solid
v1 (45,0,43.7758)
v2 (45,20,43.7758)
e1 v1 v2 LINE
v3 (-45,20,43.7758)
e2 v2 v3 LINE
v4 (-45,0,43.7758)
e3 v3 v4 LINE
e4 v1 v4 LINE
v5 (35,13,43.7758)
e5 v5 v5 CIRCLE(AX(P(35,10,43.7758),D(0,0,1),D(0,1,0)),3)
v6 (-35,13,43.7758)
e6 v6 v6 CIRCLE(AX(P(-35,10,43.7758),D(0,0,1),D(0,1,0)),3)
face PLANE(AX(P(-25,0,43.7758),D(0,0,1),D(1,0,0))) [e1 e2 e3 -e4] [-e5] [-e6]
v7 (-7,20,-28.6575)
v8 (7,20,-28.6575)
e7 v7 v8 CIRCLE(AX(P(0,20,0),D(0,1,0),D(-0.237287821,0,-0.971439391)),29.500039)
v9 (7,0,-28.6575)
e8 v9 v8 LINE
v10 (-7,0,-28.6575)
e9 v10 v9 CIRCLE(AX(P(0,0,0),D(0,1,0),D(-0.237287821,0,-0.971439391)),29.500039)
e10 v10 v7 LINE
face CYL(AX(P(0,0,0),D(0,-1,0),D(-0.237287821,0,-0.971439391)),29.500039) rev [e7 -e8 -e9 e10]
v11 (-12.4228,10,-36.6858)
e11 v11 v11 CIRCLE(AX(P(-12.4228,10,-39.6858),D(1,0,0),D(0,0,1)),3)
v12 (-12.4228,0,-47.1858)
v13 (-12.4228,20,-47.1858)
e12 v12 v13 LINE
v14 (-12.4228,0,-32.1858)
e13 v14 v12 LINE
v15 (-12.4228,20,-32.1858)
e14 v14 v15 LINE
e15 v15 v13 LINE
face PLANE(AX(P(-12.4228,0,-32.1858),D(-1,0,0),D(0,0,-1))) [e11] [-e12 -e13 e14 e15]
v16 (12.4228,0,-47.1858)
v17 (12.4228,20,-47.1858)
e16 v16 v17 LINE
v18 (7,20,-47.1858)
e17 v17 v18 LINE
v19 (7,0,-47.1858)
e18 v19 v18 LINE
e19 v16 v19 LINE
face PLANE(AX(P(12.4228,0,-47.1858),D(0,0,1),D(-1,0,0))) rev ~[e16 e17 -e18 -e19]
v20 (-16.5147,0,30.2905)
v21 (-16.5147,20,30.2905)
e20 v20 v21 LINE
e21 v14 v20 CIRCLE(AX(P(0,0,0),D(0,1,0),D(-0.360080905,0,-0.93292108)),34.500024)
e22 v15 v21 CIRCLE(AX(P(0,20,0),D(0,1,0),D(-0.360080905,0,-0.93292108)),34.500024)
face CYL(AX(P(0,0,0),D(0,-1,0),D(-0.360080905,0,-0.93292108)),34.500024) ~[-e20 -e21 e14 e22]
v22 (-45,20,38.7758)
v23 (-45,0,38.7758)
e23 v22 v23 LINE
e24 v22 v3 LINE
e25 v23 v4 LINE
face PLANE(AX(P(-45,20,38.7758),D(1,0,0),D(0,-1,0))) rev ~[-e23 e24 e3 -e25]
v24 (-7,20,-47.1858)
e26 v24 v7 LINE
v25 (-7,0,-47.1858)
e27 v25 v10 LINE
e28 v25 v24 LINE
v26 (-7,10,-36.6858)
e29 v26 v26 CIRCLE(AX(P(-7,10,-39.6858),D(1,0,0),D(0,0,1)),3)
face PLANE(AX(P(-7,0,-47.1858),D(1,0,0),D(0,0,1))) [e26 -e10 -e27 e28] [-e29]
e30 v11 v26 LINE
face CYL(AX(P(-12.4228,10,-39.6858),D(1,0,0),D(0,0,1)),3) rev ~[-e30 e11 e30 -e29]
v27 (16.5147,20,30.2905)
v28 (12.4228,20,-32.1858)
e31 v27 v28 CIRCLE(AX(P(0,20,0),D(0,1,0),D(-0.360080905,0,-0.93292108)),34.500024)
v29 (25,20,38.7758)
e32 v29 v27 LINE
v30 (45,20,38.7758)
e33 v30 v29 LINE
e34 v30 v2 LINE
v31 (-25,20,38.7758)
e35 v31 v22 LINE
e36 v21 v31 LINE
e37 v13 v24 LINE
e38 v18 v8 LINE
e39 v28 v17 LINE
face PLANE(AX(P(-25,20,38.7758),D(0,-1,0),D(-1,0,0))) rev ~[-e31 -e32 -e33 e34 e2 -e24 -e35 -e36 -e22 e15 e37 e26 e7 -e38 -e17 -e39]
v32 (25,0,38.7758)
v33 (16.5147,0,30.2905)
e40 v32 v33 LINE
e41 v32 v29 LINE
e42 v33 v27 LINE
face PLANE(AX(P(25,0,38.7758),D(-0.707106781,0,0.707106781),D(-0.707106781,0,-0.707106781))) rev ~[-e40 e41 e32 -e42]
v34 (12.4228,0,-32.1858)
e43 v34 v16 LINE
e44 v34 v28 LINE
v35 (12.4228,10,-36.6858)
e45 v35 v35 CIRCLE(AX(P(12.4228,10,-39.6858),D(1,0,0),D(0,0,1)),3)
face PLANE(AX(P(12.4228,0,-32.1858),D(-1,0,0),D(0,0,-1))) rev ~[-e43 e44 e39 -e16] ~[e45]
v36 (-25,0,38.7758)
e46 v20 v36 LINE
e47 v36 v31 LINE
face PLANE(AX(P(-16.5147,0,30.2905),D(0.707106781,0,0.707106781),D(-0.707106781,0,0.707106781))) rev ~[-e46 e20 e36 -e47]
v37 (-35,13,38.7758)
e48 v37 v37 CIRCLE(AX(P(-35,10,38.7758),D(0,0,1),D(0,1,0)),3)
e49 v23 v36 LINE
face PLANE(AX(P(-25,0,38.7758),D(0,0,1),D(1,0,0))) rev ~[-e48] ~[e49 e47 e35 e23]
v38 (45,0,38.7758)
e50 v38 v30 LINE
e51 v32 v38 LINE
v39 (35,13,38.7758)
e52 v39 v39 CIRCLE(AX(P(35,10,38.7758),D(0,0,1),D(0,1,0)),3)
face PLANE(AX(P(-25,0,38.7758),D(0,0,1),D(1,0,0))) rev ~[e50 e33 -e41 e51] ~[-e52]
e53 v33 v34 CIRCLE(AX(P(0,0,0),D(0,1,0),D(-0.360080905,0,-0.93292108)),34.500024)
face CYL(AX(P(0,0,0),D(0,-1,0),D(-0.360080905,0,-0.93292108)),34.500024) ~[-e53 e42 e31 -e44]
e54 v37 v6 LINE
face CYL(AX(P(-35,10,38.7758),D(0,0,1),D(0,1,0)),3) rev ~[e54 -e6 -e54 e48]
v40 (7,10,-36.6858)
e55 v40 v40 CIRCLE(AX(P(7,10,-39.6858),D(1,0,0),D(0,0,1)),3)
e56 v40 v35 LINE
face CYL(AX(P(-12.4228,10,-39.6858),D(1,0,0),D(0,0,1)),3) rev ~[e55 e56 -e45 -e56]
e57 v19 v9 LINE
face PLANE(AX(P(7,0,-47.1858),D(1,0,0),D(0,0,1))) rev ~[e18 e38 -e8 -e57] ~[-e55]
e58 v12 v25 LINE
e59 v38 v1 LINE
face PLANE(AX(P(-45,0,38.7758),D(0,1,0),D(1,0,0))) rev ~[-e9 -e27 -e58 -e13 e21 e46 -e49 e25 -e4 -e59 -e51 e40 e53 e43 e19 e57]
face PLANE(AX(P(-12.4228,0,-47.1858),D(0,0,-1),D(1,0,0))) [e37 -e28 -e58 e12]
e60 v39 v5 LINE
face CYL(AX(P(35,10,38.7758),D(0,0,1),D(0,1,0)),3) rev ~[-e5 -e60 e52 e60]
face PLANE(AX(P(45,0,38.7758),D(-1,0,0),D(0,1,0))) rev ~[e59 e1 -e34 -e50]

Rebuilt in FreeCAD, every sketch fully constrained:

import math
import FreeCAD as App
import Part
import Sketcher

doc = App.newDocument("Part")
body = doc.addObject("PartDesign::Body", "Body")

sketch1 = body.newObject("Sketcher::SketchObject", "Sketch")
sketch1.AttachmentSupport = (doc.getObject("XZ_Plane"), [""])
sketch1.MapMode = "FlatFace"
sketch1.addGeometry([
    Part.ArcOfCircle(Part.Circle(App.Vector(0, 0, 0), App.Vector(0, 0, 1), 30), math.radians(-76), math.radians(256)),
    Part.LineSegment(App.Vector(-7, -29, 0), App.Vector(-7, -47, 0)),
    Part.LineSegment(App.Vector(-7, -47, 0), App.Vector(-12, -47, 0)),
    Part.LineSegment(App.Vector(-12, -47, 0), App.Vector(-12, -32, 0)),
    Part.ArcOfCircle(Part.Circle(App.Vector(0, 0, 0), App.Vector(0, 0, 1), 35), math.radians(119), math.radians(249)),
    Part.LineSegment(App.Vector(-17, 30, 0), App.Vector(-25, 39, 0)),
    Part.LineSegment(App.Vector(-25, 39, 0), App.Vector(25, 39, 0)),
    Part.LineSegment(App.Vector(25, 39, 0), App.Vector(17, 30, 0)),
    Part.ArcOfCircle(Part.Circle(App.Vector(0, 0, 0), App.Vector(0, 0, 1), 35), math.radians(-69), math.radians(61)),
    Part.LineSegment(App.Vector(12, -32, 0), App.Vector(12, -47, 0)),
    Part.LineSegment(App.Vector(12, -47, 0), App.Vector(7, -47, 0)),
    Part.LineSegment(App.Vector(7, -47, 0), App.Vector(7, -29, 0)),
], False)
sketch1.addConstraint([
    Sketcher.Constraint("Coincident", 0, 2, 1, 1),
    Sketcher.Constraint("Coincident", 1, 2, 2, 1),
    Sketcher.Constraint("Coincident", 2, 2, 3, 1),
    Sketcher.Constraint("Coincident", 3, 2, 4, 2),
    Sketcher.Constraint("Coincident", 4, 1, 5, 1),
    Sketcher.Constraint("Coincident", 5, 2, 6, 1),
    Sketcher.Constraint("Coincident", 6, 2, 7, 1),
    Sketcher.Constraint("Coincident", 7, 2, 8, 2),
    Sketcher.Constraint("Coincident", 8, 1, 9, 1),
    Sketcher.Constraint("Coincident", 9, 2, 10, 1),
    Sketcher.Constraint("Coincident", 10, 2, 11, 1),
    Sketcher.Constraint("Coincident", 11, 2, 0, 1),
    Sketcher.Constraint("Vertical", 1),
    Sketcher.Constraint("Horizontal", 2),
    Sketcher.Constraint("Vertical", 3),
    Sketcher.Constraint("Horizontal", 6),
    Sketcher.Constraint("Vertical", 9),
    Sketcher.Constraint("Horizontal", 10),
    Sketcher.Constraint("Vertical", 11),
    Sketcher.Constraint("Coincident", 0, 3, -1, 1),
    Sketcher.Constraint("Coincident", 4, 3, -1, 1),
    Sketcher.Constraint("Coincident", 8, 3, -1, 1),
    Sketcher.Constraint("Equal", 4, 8),
    Sketcher.Constraint("Symmetric", 2, 2, 9, 2, -2),
    Sketcher.Constraint("Perpendicular", 5, 7),
    Sketcher.Constraint("Horizontal", 4, 1, 7, 2),
    Sketcher.Constraint("Horizontal", 0, 2, 11, 2),
    Sketcher.Constraint("Equal", 5, 7),
    Sketcher.Constraint("Radius", 0, 29.5),
    Sketcher.Constraint("DistanceX", 6, 1, 6, 2, 50.0),
    Sketcher.Constraint("DistanceY", 3, 1, 3, 2, 15.0),
    Sketcher.Constraint("Distance", 5, 12.0),
    Sketcher.Constraint("DistanceX", 1, 2, 10, 2, 14.0),
    Sketcher.Constraint("Radius", 4, 34.5),
    Sketcher.Constraint("DistanceX", 2, 2, 2, 1, 5.4228),
])
pad1 = body.newObject("PartDesign::Pad", "Pad")
pad1.Profile = sketch1
pad1.Length = 20
pad1.Reversed = True

sketch2 = body.newObject("Sketcher::SketchObject", "Sketch001")
sketch2.AttachmentSupport = (doc.getObject("XY_Plane"), [""])
sketch2.MapMode = "FlatFace"
sketch2.AttachmentOffset = App.Placement(App.Vector(0, 0, 38.7758), App.Rotation())
sketch2.addGeometry([
    Part.LineSegment(App.Vector(-45, 0, 0), App.Vector(45, 0, 0)),
    Part.LineSegment(App.Vector(45, 0, 0), App.Vector(45, 20, 0)),
    Part.LineSegment(App.Vector(45, 20, 0), App.Vector(-45, 20, 0)),
    Part.LineSegment(App.Vector(-45, 20, 0), App.Vector(-45, 0, 0)),
], False)
sketch2.addConstraint([
    Sketcher.Constraint("Coincident", 0, 2, 1, 1),
    Sketcher.Constraint("Coincident", 1, 2, 2, 1),
    Sketcher.Constraint("Coincident", 2, 2, 3, 1),
    Sketcher.Constraint("Coincident", 3, 2, 0, 1),
    Sketcher.Constraint("Horizontal", 0),
    Sketcher.Constraint("Vertical", 1),
    Sketcher.Constraint("Horizontal", 2),
    Sketcher.Constraint("Vertical", 3),
    Sketcher.Constraint("Symmetric", 0, 2, 3, 2, -1, 1),
    Sketcher.Constraint("DistanceX", 0, 1, 0, 2, 90.0),
    Sketcher.Constraint("DistanceY", 1, 1, 1, 2, 20.0),
])
pad2 = body.newObject("PartDesign::Pad", "Pad001")
pad2.Profile = sketch2
pad2.Length = 5

sketch3 = body.newObject("Sketcher::SketchObject", "Sketch002")
sketch3.AttachmentSupport = (doc.getObject("YZ_Plane"), [""])
sketch3.MapMode = "FlatFace"
sketch3.AttachmentOffset = App.Placement(App.Vector(0, 0, -12.4228), App.Rotation())
sketch3.addGeometry(Part.Circle(App.Vector(10, -39.7, 0), App.Vector(0, 0, 1), 3), False)
sketch3.addConstraint([
    Sketcher.Constraint("Diameter", 0, 6.0),
    Sketcher.Constraint("DistanceX", -1, 1, 0, 3, 10.0),
    Sketcher.Constraint("DistanceY", 0, 3, -1, 1, 39.6858),
])
doc.recompute()
hole = body.newObject("PartDesign::Hole", "Hole")
hole.Profile = sketch3
hole.ThreadType = "None"
hole.Diameter = 6
hole.DepthType = "ThroughAll"
hole.Reversed = True

sketch4 = body.newObject("Sketcher::SketchObject", "Sketch003")
sketch4.AttachmentSupport = (doc.getObject("XY_Plane"), [""])
sketch4.MapMode = "FlatFace"
sketch4.AttachmentOffset = App.Placement(App.Vector(0, 0, 38.7758), App.Rotation())
sketch4.addGeometry(Part.Circle(App.Vector(-35, 10, 0), App.Vector(0, 0, 1), 3), False)
sketch4.addConstraint([
    Sketcher.Constraint("Diameter", 0, 6.0),
    Sketcher.Constraint("DistanceX", 0, 3, -1, 1, 35.0),
    Sketcher.Constraint("DistanceY", -1, 1, 0, 3, 10.0),
])
doc.recompute()
hole2 = body.newObject("PartDesign::Hole", "Hole001")
hole2.Profile = sketch4
hole2.ThreadType = "None"
hole2.Diameter = 6
hole2.DepthType = "ThroughAll"
hole2.Reversed = True

sketch5 = body.newObject("Sketcher::SketchObject", "Sketch004")
sketch5.AttachmentSupport = (doc.getObject("XY_Plane"), [""])
sketch5.MapMode = "FlatFace"
sketch5.AttachmentOffset = App.Placement(App.Vector(0, 0, 38.7758), App.Rotation())
sketch5.addGeometry(Part.Circle(App.Vector(35, 10, 0), App.Vector(0, 0, 1), 3), False)
sketch5.addConstraint([
    Sketcher.Constraint("Diameter", 0, 6.0),
    Sketcher.Constraint("DistanceX", -1, 1, 0, 3, 35.0),
    Sketcher.Constraint("DistanceY", -1, 1, 0, 3, 10.0),
])
doc.recompute()
hole3 = body.newObject("PartDesign::Hole", "Hole002")
hole3.Profile = sketch5
hole3.ThreadType = "None"
hole3.Diameter = 6
hole3.DepthType = "ThroughAll"
hole3.Reversed = True

doc.recompute()
